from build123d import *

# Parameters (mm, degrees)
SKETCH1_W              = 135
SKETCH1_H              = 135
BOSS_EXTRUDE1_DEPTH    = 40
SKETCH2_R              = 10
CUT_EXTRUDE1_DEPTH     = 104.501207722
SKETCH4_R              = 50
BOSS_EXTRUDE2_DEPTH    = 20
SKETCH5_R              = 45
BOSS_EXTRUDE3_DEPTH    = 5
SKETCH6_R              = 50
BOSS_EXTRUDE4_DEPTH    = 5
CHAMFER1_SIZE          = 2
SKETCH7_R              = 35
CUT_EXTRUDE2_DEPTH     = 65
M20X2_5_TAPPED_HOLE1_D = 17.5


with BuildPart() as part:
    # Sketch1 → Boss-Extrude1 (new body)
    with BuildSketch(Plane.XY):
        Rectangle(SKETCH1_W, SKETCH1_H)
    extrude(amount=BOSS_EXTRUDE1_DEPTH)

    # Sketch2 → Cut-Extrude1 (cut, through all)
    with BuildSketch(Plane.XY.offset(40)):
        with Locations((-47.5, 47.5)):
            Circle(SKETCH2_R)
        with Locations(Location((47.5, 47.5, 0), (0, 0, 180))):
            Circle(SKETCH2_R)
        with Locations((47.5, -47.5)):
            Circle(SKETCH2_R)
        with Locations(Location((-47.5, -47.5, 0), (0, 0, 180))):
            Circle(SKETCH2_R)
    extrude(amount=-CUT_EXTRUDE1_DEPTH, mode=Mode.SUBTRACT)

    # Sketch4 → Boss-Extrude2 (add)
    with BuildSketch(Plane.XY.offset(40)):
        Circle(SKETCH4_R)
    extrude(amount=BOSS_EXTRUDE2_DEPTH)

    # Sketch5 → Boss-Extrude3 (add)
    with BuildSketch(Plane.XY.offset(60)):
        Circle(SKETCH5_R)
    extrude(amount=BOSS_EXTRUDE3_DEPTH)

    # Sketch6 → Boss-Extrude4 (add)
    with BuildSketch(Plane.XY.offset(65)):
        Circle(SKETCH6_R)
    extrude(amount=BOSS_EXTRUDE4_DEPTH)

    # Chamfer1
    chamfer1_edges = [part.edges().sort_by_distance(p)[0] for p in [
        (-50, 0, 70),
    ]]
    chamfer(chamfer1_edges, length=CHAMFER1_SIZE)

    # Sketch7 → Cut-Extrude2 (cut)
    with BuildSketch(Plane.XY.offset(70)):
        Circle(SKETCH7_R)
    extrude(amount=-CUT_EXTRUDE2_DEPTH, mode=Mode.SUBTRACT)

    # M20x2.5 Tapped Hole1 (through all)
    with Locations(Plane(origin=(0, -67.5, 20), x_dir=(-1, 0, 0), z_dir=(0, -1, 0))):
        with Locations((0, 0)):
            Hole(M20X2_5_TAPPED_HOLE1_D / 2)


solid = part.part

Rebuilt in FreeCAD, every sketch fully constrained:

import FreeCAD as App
import Part
import Sketcher

V = App.Vector
Q = App.Units.Quantity


def edges_at(feature, points):
    """Names of the edges that pass closest to the given points."""
    edges = feature.Shape.Edges
    near = lambda p: min(range(len(edges)), key=lambda i: edges[i].distToShape(Part.Vertex(*p))[0])
    return sorted({f"Edge{near(p) + 1}" for p in points})


def add_polygon(sketch, points):
    """Adds a closed chain of lines whose ends are joined by coincident constraints."""
    first, n = sketch.GeometryCount, len(points)
    for a, b in zip(points, points[1:] + points[:1]):
        sketch.addGeometry(Part.LineSegment(App.Vector(*a, 0), App.Vector(*b, 0)), False)
    for i in range(n):
        sketch.addConstraint(Sketcher.Constraint("Coincident", first + i, 2, first + (i + 1) % n, 1))

doc = App.newDocument("Part")
body = doc.addObject("PartDesign::Body", "Body")

# Sketch on XY plane
sketch1 = body.newObject("Sketcher::SketchObject", "Sketch")
sketch1.AttachmentSupport = (doc.getObject("XY_Plane"), [""])
sketch1.MapMode = "FlatFace"
add_polygon(sketch1, [(-68, 68), (-68, -68), (68, -68), (68, 68)])  # lines 0-3
sketch1.addConstraint([
    Sketcher.Constraint("Vertical", 0),
    Sketcher.Constraint("Horizontal", 1),
    Sketcher.Constraint("Vertical", 2),
    Sketcher.Constraint("Horizontal", 3),
    Sketcher.Constraint("Symmetric", 0, 2, 2, 2, -1, 1),
    Sketcher.Constraint("Equal", 3, 0),
    Sketcher.Constraint("DistanceX", 1, 1, 1, 2, Q("135 mm")),
])
pad1 = body.newObject("PartDesign::Pad", "Pad")
pad1.Profile = sketch1
pad1.Length = 40

# Sketch on XY plane
sketch2 = body.newObject("Sketcher::SketchObject", "Sketch001")
sketch2.AttachmentSupport = (doc.getObject("XY_Plane"), [""])
sketch2.MapMode = "FlatFace"
sketch2.AttachmentOffset = App.Placement(V(0, 0, 40), App.Rotation())
sketch2.addGeometry([
    Part.Circle(V(-48, 48, 0), V(0, 0, 1), 10),
    Part.Circle(V(48, 48, 0), V(0, 0, 1), 10),
    Part.Circle(V(48, -48, 0), V(0, 0, 1), 10),
    Part.Circle(V(-48, -48, 0), V(0, 0, 1), 10),
], False)
sketch2.addConstraint([
    Sketcher.Constraint("Equal", 0, 1),
    Sketcher.Constraint("Equal", 1, 2),
    Sketcher.Constraint("Equal", 2, 3),
    Sketcher.Constraint("Symmetric", 0, 3, 2, 3, -1, 1),
    Sketcher.Constraint("Symmetric", 1, 3, 3, 3, -1, 1),
    Sketcher.Constraint("Symmetric", 0, 3, 1, 3, -2),
    Sketcher.Constraint("Diameter", 0, Q("20 mm")),
    Sketcher.Constraint("DistanceX", 0, 3, 1, 3, Q("95 mm")),
    Sketcher.Constraint("DistanceY", 2, 3, 1, 3, Q("95 mm")),
])
pocket1 = body.newObject("PartDesign::Pocket", "Pocket")
pocket1.Profile = sketch2
pocket1.Type = "ThroughAll"

# Sketch on XY plane
sketch3 = body.newObject("Sketcher::SketchObject", "Sketch002")
sketch3.AttachmentSupport = (doc.getObject("XY_Plane"), [""])
sketch3.MapMode = "FlatFace"
sketch3.AttachmentOffset = App.Placement(V(0, 0, 40), App.Rotation())
sketch3.addGeometry(Part.Circle(V(0, 0, 0), V(0, 0, 1), 50), False)
sketch3.addConstraint([
    Sketcher.Constraint("Coincident", 0, 3, -1, 1),
    Sketcher.Constraint("Diameter", 0, Q("100 mm")),
])
pad2 = body.newObject("PartDesign::Pad", "Pad001")
pad2.Profile = sketch3
pad2.Length = 20

# Sketch on XY plane
sketch4 = body.newObject("Sketcher::SketchObject", "Sketch003")
sketch4.AttachmentSupport = (doc.getObject("XY_Plane"), [""])
sketch4.MapMode = "FlatFace"
sketch4.AttachmentOffset = App.Placement(V(0, 0, 60), App.Rotation())
sketch4.addGeometry(Part.Circle(V(0, 0, 0), V(0, 0, 1), 45), False)
sketch4.addConstraint([
    Sketcher.Constraint("Coincident", 0, 3, -1, 1),
    Sketcher.Constraint("Diameter", 0, Q("90 mm")),
])
pad3 = body.newObject("PartDesign::Pad", "Pad002")
pad3.Profile = sketch4
pad3.Length = 5

# Sketch on XY plane
sketch5 = body.newObject("Sketcher::SketchObject", "Sketch004")
sketch5.AttachmentSupport = (doc.getObject("XY_Plane"), [""])
sketch5.MapMode = "FlatFace"
sketch5.AttachmentOffset = App.Placement(V(0, 0, 65), App.Rotation())
sketch5.addGeometry(Part.Circle(V(0, 0, 0), V(0, 0, 1), 50), False)
sketch5.addConstraint([
    Sketcher.Constraint("Coincident", 0, 3, -1, 1),
    Sketcher.Constraint("Diameter", 0, Q("100 mm")),
])
pad4 = body.newObject("PartDesign::Pad", "Pad003")
pad4.Profile = sketch5
pad4.Length = 5
doc.recompute()

chamfer = body.newObject("PartDesign::Chamfer", "Chamfer")
chamfer.Base = (pad4, edges_at(pad4, [(-50, 0, 70)]))
chamfer.Size = 2

# Sketch on XY plane
sketch6 = body.newObject("Sketcher::SketchObject", "Sketch005")
sketch6.AttachmentSupport = (doc.getObject("XY_Plane"), [""])
sketch6.MapMode = "FlatFace"
sketch6.AttachmentOffset = App.Placement(V(0, 0, 70), App.Rotation())
sketch6.addGeometry(Part.Circle(V(0, 0, 0), V(0, 0, 1), 35), False)
sketch6.addConstraint([
    Sketcher.Constraint("Coincident", 0, 3, -1, 1),
    Sketcher.Constraint("Diameter", 0, Q("70 mm")),
])
pocket2 = body.newObject("PartDesign::Pocket", "Pocket001")
pocket2.Profile = sketch6
pocket2.Length = 65

# Sketch on XZ plane
sketch7 = body.newObject("Sketcher::SketchObject", "Sketch006")
sketch7.AttachmentSupport = (doc.getObject("XZ_Plane"), [""])
sketch7.MapMode = "FlatFace"
sketch7.AttachmentOffset = App.Placement(V(0, 0, 67.5), App.Rotation())
sketch7.addGeometry(Part.Circle(V(0, 20, 0), V(0, 0, 1), 9), False)
sketch7.addConstraint([
    Sketcher.Constraint("PointOnObject", 0, 3, -2),
    Sketcher.Constraint("Diameter", 0, Q("17.5 mm")),
    Sketcher.Constraint("DistanceY", -1, 1, 0, 3, Q("20 mm")),
])
doc.recompute()
hole = body.newObject("PartDesign::Hole", "Hole")
hole.Profile = sketch7
hole.ThreadType = "None"
hole.Diameter = 17.5
hole.DepthType = "ThroughAll"

doc.recompute()
